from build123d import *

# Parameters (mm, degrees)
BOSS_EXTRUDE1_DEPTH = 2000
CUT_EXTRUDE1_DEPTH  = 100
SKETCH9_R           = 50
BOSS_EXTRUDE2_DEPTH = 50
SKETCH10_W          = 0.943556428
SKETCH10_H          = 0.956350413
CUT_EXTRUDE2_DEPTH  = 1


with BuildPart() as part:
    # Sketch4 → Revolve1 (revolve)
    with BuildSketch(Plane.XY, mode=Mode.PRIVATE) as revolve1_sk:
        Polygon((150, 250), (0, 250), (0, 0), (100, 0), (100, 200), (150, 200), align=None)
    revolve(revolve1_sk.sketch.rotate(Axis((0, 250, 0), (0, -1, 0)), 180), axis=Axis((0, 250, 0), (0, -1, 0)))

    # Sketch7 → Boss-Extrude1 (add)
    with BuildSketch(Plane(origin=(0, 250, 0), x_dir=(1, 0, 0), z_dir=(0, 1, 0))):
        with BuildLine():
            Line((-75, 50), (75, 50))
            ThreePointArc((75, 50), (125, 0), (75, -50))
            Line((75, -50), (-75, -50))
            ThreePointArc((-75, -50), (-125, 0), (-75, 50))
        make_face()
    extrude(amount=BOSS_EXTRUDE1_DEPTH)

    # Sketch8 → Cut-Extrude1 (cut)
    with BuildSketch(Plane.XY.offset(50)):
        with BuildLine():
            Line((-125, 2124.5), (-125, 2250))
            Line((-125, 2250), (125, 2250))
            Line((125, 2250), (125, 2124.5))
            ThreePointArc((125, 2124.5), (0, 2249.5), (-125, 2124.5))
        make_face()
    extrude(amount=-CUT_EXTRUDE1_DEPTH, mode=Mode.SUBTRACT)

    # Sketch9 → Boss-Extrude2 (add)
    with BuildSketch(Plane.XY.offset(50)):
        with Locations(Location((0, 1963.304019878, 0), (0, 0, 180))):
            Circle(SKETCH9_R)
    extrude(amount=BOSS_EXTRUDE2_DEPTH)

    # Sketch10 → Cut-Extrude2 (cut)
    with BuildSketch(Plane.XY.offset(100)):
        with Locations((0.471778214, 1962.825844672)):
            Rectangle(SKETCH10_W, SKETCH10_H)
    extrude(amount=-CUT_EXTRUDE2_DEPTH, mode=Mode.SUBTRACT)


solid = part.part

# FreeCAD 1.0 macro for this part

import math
import FreeCAD as App
import Part
import Sketcher
from FreeCAD import Vector
Q = App.Units.Quantity

doc = App.newDocument("Part")
body = doc.addObject("PartDesign::Body", "Body")

# Sketch on XY plane
sketch1 = body.newObject("Sketcher::SketchObject", "Sketch")
sketch1.AttachmentSupport = (doc.getObject("XY_Plane"), [""])
sketch1.MapMode = "FlatFace"
sketch1.addGeometry([
    Part.LineSegment(Vector(150, 250, 0), Vector(0, 250, 0)),  # 0
    Part.LineSegment(Vector(0, 250, 0), Vector(0, 0, 0)),  # 1
    Part.LineSegment(Vector(0, 0, 0), Vector(100, 0, 0)),  # 2
    Part.LineSegment(Vector(100, 0, 0), Vector(100, 200, 0)),  # 3
    Part.LineSegment(Vector(100, 200, 0), Vector(150, 200, 0)),  # 4
    Part.LineSegment(Vector(150, 200, 0), Vector(150, 250, 0)),  # 5
], False)
sketch1.addConstraint([
    Sketcher.Constraint("Coincident", 0, 2, 1, 1),
    Sketcher.Constraint("Coincident", 1, 2, 2, 1),
    Sketcher.Constraint("Coincident", 2, 2, 3, 1),
    Sketcher.Constraint("Coincident", 3, 2, 4, 1),
    Sketcher.Constraint("Coincident", 4, 2, 5, 1),
    Sketcher.Constraint("Coincident", 5, 2, 0, 1),
    Sketcher.Constraint("Horizontal", 0),
    Sketcher.Constraint("Vertical", 1),
    Sketcher.Constraint("Horizontal", 2),
    Sketcher.Constraint("Vertical", 3),
    Sketcher.Constraint("Horizontal", 4),
    Sketcher.Constraint("Vertical", 5),
    Sketcher.Constraint("Coincident", 1, 2, -1, 1),
    Sketcher.Constraint("Equal", 4, 5),
    Sketcher.Constraint("DistanceX", 0, 2, 0, 1, Q("150 mm")),
    Sketcher.Constraint("DistanceX", 2, 1, 2, 2, Q("100 mm")),
    Sketcher.Constraint("DistanceY", 1, 2, 1, 1, Q("250 mm")),
])
revolution = body.newObject("PartDesign::Revolution", "Revolution")
revolution.Profile = sketch1
revolution.ReferenceAxis = (sketch1, ["V_Axis"])
revolution.Angle = 360

# Sketch on XZ plane
sketch2 = body.newObject("Sketcher::SketchObject", "Sketch001")
sketch2.AttachmentSupport = (doc.getObject("XZ_Plane"), [""])
sketch2.MapMode = "FlatFace"
sketch2.AttachmentOffset = App.Placement(Vector(0, 0, -250), App.Rotation())
sketch2.addGeometry([
    Part.LineSegment(Vector(75, -50, 0), Vector(-75, -50, 0)),
    Part.ArcOfCircle(Part.Circle(Vector(-75, 0, 0), Vector(0, 0, 1), 50), math.radians(90), math.radians(270)),
    Part.LineSegment(Vector(-75, 50, 0), Vector(75, 50, 0)),
    Part.ArcOfCircle(Part.Circle(Vector(75, 0, 0), Vector(0, 0, 1), 50), math.radians(-90), math.radians(90)),
], False)
sketch2.addConstraint([
    Sketcher.Constraint("Tangent", 0, 2, 1, 2),
    Sketcher.Constraint("Tangent", 1, 1, 2, 1),
    Sketcher.Constraint("Tangent", 2, 2, 3, 2),
    Sketcher.Constraint("Tangent", 3, 1, 0, 1),
    Sketcher.Constraint("Horizontal", 0),
    Sketcher.Constraint("Horizontal", 2),
    Sketcher.Constraint("Symmetric", 1, 3, 3, 3, -1, 1),
    Sketcher.Constraint("Radius", 1, Q("50 mm")),
    Sketcher.Constraint("DistanceX", 0, 2, 0, 1, Q("150 mm")),
])
pad1 = body.newObject("PartDesign::Pad", "Pad")
pad1.Profile = sketch2
pad1.Length = 2000
pad1.Reversed = True

# Sketch on XY plane
sketch3 = body.newObject("Sketcher::SketchObject", "Sketch002")
sketch3.AttachmentSupport = (doc.getObject("XY_Plane"), [""])
sketch3.MapMode = "FlatFace"
sketch3.AttachmentOffset = App.Placement(Vector(0, 0, 50), App.Rotation())
sketch3.addGeometry([
    Part.LineSegment(Vector(-125, 2250, 0), Vector(-125, 2124, 0)),
    Part.ArcOfCircle(Part.Circle(Vector(0, 2124, 0), Vector(0, 0, 1), 125), math.radians(0), math.radians(180)),
    Part.LineSegment(Vector(125, 2124, 0), Vector(125, 2250, 0)),
    Part.LineSegment(Vector(125, 2250, 0), Vector(-125, 2250, 0)),
], False)
sketch3.addConstraint([
    Sketcher.Constraint("Tangent", 0, 2, 1, 2),
    Sketcher.Constraint("Tangent", 1, 1, 2, 1),
    Sketcher.Constraint("Coincident", 2, 2, 3, 1),
    Sketcher.Constraint("Coincident", 3, 2, 0, 1),
    Sketcher.Constraint("Vertical", 0),
    Sketcher.Constraint("Vertical", 2),
    Sketcher.Constraint("Horizontal", 3),
    Sketcher.Constraint("PointOnObject", 1, 3, -2),
    Sketcher.Constraint("Radius", 1, Q("125 mm")),
    Sketcher.Constraint("DistanceY", 0, 2, 0, 1, Q("125.5 mm")),
    Sketcher.Constraint("DistanceY", -1, 1, 2, 2, Q("2250 mm")),
])
pocket1 = body.newObject("PartDesign::Pocket", "Pocket")
pocket1.Profile = sketch3
pocket1.Length = 100

# Sketch on XY plane
sketch4 = body.newObject("Sketcher::SketchObject", "Sketch003")
sketch4.AttachmentSupport = (doc.getObject("XY_Plane"), [""])
sketch4.MapMode = "FlatFace"
sketch4.AttachmentOffset = App.Placement(Vector(0, 0, 50), App.Rotation())
sketch4.addGeometry(Part.Circle(Vector(0, 1963, 0), Vector(0, 0, 1), 50), False)
sketch4.addConstraint([
    Sketcher.Constraint("PointOnObject", 0, 3, -2),
    Sketcher.Constraint("Diameter", 0, Q("100 mm")),
    Sketcher.Constraint("DistanceY", -1, 1, 0, 3, Q("1963.30402 mm")),
])
pad2 = body.newObject("PartDesign::Pad", "Pad001")
pad2.Profile = sketch4
pad2.Length = 50

# Sketch on XY plane
sketch5 = body.newObject("Sketcher::SketchObject", "Sketch004")
sketch5.AttachmentSupport = (doc.getObject("XY_Plane"), [""])
sketch5.MapMode = "FlatFace"
sketch5.AttachmentOffset = App.Placement(Vector(0, 0, 100), App.Rotation())
sketch5.addGeometry([
    Part.LineSegment(Vector(0, 1963.3, 0), Vector(0, 1962.3, 0)),
    Part.LineSegment(Vector(0, 1962.3, 0), Vector(0.9, 1962.3, 0)),
    Part.LineSegment(Vector(0.9, 1962.3, 0), Vector(0.9, 1963.3, 0)),
    Part.LineSegment(Vector(0.9, 1963.3, 0), Vector(0, 1963.3, 0)),
], False)
sketch5.addConstraint([
    Sketcher.Constraint("Coincident", 0, 2, 1, 1),
    Sketcher.Constraint("Coincident", 1, 2, 2, 1),
    Sketcher.Constraint("Coincident", 2, 2, 3, 1),
    Sketcher.Constraint("Coincident", 3, 2, 0, 1),
    Sketcher.Constraint("Vertical", 0),
    Sketcher.Constraint("Horizontal", 1),
    Sketcher.Constraint("Vertical", 2),
    Sketcher.Constraint("Horizontal", 3),
    Sketcher.Constraint("PointOnObject", 0, 2, -2),
    Sketcher.Constraint("DistanceY", 0, 2, 0, 1, Q("0.95635 mm")),
    Sketcher.Constraint("DistanceX", 1, 1, 1, 2, Q("0.943556 mm")),
    Sketcher.Constraint("DistanceY", -1, 1, 0, 2, Q("1962.347669 mm")),
])
pocket2 = body.newObject("PartDesign::Pocket", "Pocket001")
pocket2.Profile = sketch5
pocket2.Length = 1

doc.recompute()
